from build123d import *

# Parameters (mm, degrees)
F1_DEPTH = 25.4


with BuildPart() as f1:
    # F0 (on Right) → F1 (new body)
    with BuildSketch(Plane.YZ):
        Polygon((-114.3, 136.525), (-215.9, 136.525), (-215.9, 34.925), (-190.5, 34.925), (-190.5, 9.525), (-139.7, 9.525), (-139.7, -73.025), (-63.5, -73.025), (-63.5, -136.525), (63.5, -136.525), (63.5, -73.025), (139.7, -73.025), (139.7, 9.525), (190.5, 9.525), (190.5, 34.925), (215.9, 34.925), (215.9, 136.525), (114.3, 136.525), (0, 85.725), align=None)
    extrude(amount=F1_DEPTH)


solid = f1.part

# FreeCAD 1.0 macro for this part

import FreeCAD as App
import Part
import Sketcher
Q = App.Units.Quantity

doc = App.newDocument("Part")
body = doc.addObject("PartDesign::Body", "Body")

sketch1 = doc.addObject("Sketcher::SketchObject", "Sketch")
body.addObject(sketch1)
sketch1.AttachmentSupport = (doc.YZ_Plane, [""])
sketch1.MapMode = "FlatFace"
sketch1.addGeometry(Part.LineSegment(App.Vector(-114.3, 136.525, 0), App.Vector(-215.9, 136.525, 0)), False)
sketch1.addGeometry(Part.LineSegment(App.Vector(-215.9, 136.525, 0), App.Vector(-215.9, 34.925, 0)), False)
sketch1.addGeometry(Part.LineSegment(App.Vector(-215.9, 34.925, 0), App.Vector(-190.5, 34.925, 0)), False)
sketch1.addGeometry(Part.LineSegment(App.Vector(-190.5, 34.925, 0), App.Vector(-190.5, 9.525, 0)), False)
sketch1.addGeometry(Part.LineSegment(App.Vector(-190.5, 9.525, 0), App.Vector(-139.7, 9.525, 0)), False)
sketch1.addGeometry(Part.LineSegment(App.Vector(-139.7, 9.525, 0), App.Vector(-139.7, -73.025, 0)), False)
sketch1.addGeometry(Part.LineSegment(App.Vector(-139.7, -73.025, 0), App.Vector(-63.5, -73.025, 0)), False)
sketch1.addGeometry(Part.LineSegment(App.Vector(-63.5, -73.025, 0), App.Vector(-63.5, -136.525, 0)), False)
sketch1.addGeometry(Part.LineSegment(App.Vector(-63.5, -136.525, 0), App.Vector(63.5, -136.525, 0)), False)
sketch1.addGeometry(Part.LineSegment(App.Vector(63.5, -136.525, 0), App.Vector(63.5, -73.025, 0)), False)
sketch1.addGeometry(Part.LineSegment(App.Vector(63.5, -73.025, 0), App.Vector(139.7, -73.025, 0)), False)
sketch1.addGeometry(Part.LineSegment(App.Vector(139.7, -73.025, 0), App.Vector(139.7, 9.525, 0)), False)
sketch1.addGeometry(Part.LineSegment(App.Vector(139.7, 9.525, 0), App.Vector(190.5, 9.525, 0)), False)
sketch1.addGeometry(Part.LineSegment(App.Vector(190.5, 9.525, 0), App.Vector(190.5, 34.925, 0)), False)
sketch1.addGeometry(Part.LineSegment(App.Vector(190.5, 34.925, 0), App.Vector(215.9, 34.925, 0)), False)
sketch1.addGeometry(Part.LineSegment(App.Vector(215.9, 34.925, 0), App.Vector(215.9, 136.525, 0)), False)
sketch1.addGeometry(Part.LineSegment(App.Vector(215.9, 136.525, 0), App.Vector(114.3, 136.525, 0)), False)
sketch1.addGeometry(Part.LineSegment(App.Vector(114.3, 136.525, 0), App.Vector(0, 85.725, 0)), False)
sketch1.addGeometry(Part.LineSegment(App.Vector(0, 85.725, 0), App.Vector(-114.3, 136.525, 0)), False)
sketch1.addConstraint(Sketcher.Constraint("Coincident", 0, 2, 1, 1))
sketch1.addConstraint(Sketcher.Constraint("Coincident", 1, 2, 2, 1))
sketch1.addConstraint(Sketcher.Constraint("Coincident", 2, 2, 3, 1))
sketch1.addConstraint(Sketcher.Constraint("Coincident", 3, 2, 4, 1))
sketch1.addConstraint(Sketcher.Constraint("Coincident", 4, 2, 5, 1))
sketch1.addConstraint(Sketcher.Constraint("Coincident", 5, 2, 6, 1))
sketch1.addConstraint(Sketcher.Constraint("Coincident", 6, 2, 7, 1))
sketch1.addConstraint(Sketcher.Constraint("Coincident", 7, 2, 8, 1))
sketch1.addConstraint(Sketcher.Constraint("Coincident", 8, 2, 9, 1))
sketch1.addConstraint(Sketcher.Constraint("Coincident", 9, 2, 10, 1))
sketch1.addConstraint(Sketcher.Constraint("Coincident", 10, 2, 11, 1))
sketch1.addConstraint(Sketcher.Constraint("Coincident", 11, 2, 12, 1))
sketch1.addConstraint(Sketcher.Constraint("Coincident", 12, 2, 13, 1))
sketch1.addConstraint(Sketcher.Constraint("Coincident", 13, 2, 14, 1))
sketch1.addConstraint(Sketcher.Constraint("Coincident", 14, 2, 15, 1))
sketch1.addConstraint(Sketcher.Constraint("Coincident", 15, 2, 16, 1))
sketch1.addConstraint(Sketcher.Constraint("Coincident", 16, 2, 17, 1))
sketch1.addConstraint(Sketcher.Constraint("Coincident", 17, 2, 18, 1))
sketch1.addConstraint(Sketcher.Constraint("Coincident", 18, 2, 0, 1))
sketch1.addConstraint(Sketcher.Constraint("Horizontal", 0))
sketch1.addConstraint(Sketcher.Constraint("Vertical", 1))
sketch1.addConstraint(Sketcher.Constraint("Horizontal", 2))
sketch1.addConstraint(Sketcher.Constraint("Vertical", 3))
sketch1.addConstraint(Sketcher.Constraint("Horizontal", 4))
sketch1.addConstraint(Sketcher.Constraint("Vertical", 5))
sketch1.addConstraint(Sketcher.Constraint("Horizontal", 6))
sketch1.addConstraint(Sketcher.Constraint("Vertical", 7))
sketch1.addConstraint(Sketcher.Constraint("Horizontal", 8))
sketch1.addConstraint(Sketcher.Constraint("Vertical", 9))
sketch1.addConstraint(Sketcher.Constraint("Horizontal", 10))
sketch1.addConstraint(Sketcher.Constraint("Vertical", 11))
sketch1.addConstraint(Sketcher.Constraint("Horizontal", 12))
sketch1.addConstraint(Sketcher.Constraint("Vertical", 13))
sketch1.addConstraint(Sketcher.Constraint("Horizontal", 14))
sketch1.addConstraint(Sketcher.Constraint("Vertical", 15))
sketch1.addConstraint(Sketcher.Constraint("Horizontal", 16))
sketch1.addConstraint(Sketcher.Constraint("Symmetric", 6, 2, 9, 2, -2))
sketch1.addConstraint(Sketcher.Constraint("Symmetric", 4, 2, 11, 2, -2))
sketch1.addConstraint(Sketcher.Constraint("Symmetric", 2, 2, 13, 2, -2))
sketch1.addConstraint(Sketcher.Constraint("Symmetric", 0, 2, 15, 2, -2))
sketch1.addConstraint(Sketcher.Constraint("PointOnObject", 17, 2, -2))
sketch1.addConstraint(Sketcher.Constraint("Equal", 0, 16))
sketch1.addConstraint(Sketcher.Constraint("Equal", 16, 1))
sketch1.addConstraint(Sketcher.Constraint("Equal", 14, 3))
sketch1.addConstraint(Sketcher.Constraint("DistanceX", 0, 2, 0, 1, Q("4 in")))
sketch1.addConstraint(Sketcher.Constraint("DistanceX", 2, 1, 2, 2, Q("1 in")))
sketch1.addConstraint(Sketcher.Constraint("DistanceX", 4, 1, 4, 2, Q("2 in")))
sketch1.addConstraint(Sketcher.Constraint("DistanceX", 6, 1, 6, 2, Q("3 in")))
sketch1.addConstraint(Sketcher.Constraint("DistanceX", 8, 1, 8, 2, Q("5 in")))
sketch1.addConstraint(Sketcher.Constraint("DistanceY", 7, 2, 7, 1, Q("2.5 in")))
sketch1.addConstraint(Sketcher.Constraint("DistanceY", 17, 2, 16, 2, Q("2 in")))
sketch1.addConstraint(Sketcher.Constraint("DistanceY", 5, 2, 5, 1, Q("3.25 in")))
sketch1.addConstraint(Sketcher.Constraint("DistanceY", -1, 1, 0, 2, Q("5.375 in")))
pad1 = doc.addObject("PartDesign::Pad", "Pad")
body.addObject(pad1)
pad1.Profile = sketch1
pad1.Length = Q("1 in")

doc.recompute()
